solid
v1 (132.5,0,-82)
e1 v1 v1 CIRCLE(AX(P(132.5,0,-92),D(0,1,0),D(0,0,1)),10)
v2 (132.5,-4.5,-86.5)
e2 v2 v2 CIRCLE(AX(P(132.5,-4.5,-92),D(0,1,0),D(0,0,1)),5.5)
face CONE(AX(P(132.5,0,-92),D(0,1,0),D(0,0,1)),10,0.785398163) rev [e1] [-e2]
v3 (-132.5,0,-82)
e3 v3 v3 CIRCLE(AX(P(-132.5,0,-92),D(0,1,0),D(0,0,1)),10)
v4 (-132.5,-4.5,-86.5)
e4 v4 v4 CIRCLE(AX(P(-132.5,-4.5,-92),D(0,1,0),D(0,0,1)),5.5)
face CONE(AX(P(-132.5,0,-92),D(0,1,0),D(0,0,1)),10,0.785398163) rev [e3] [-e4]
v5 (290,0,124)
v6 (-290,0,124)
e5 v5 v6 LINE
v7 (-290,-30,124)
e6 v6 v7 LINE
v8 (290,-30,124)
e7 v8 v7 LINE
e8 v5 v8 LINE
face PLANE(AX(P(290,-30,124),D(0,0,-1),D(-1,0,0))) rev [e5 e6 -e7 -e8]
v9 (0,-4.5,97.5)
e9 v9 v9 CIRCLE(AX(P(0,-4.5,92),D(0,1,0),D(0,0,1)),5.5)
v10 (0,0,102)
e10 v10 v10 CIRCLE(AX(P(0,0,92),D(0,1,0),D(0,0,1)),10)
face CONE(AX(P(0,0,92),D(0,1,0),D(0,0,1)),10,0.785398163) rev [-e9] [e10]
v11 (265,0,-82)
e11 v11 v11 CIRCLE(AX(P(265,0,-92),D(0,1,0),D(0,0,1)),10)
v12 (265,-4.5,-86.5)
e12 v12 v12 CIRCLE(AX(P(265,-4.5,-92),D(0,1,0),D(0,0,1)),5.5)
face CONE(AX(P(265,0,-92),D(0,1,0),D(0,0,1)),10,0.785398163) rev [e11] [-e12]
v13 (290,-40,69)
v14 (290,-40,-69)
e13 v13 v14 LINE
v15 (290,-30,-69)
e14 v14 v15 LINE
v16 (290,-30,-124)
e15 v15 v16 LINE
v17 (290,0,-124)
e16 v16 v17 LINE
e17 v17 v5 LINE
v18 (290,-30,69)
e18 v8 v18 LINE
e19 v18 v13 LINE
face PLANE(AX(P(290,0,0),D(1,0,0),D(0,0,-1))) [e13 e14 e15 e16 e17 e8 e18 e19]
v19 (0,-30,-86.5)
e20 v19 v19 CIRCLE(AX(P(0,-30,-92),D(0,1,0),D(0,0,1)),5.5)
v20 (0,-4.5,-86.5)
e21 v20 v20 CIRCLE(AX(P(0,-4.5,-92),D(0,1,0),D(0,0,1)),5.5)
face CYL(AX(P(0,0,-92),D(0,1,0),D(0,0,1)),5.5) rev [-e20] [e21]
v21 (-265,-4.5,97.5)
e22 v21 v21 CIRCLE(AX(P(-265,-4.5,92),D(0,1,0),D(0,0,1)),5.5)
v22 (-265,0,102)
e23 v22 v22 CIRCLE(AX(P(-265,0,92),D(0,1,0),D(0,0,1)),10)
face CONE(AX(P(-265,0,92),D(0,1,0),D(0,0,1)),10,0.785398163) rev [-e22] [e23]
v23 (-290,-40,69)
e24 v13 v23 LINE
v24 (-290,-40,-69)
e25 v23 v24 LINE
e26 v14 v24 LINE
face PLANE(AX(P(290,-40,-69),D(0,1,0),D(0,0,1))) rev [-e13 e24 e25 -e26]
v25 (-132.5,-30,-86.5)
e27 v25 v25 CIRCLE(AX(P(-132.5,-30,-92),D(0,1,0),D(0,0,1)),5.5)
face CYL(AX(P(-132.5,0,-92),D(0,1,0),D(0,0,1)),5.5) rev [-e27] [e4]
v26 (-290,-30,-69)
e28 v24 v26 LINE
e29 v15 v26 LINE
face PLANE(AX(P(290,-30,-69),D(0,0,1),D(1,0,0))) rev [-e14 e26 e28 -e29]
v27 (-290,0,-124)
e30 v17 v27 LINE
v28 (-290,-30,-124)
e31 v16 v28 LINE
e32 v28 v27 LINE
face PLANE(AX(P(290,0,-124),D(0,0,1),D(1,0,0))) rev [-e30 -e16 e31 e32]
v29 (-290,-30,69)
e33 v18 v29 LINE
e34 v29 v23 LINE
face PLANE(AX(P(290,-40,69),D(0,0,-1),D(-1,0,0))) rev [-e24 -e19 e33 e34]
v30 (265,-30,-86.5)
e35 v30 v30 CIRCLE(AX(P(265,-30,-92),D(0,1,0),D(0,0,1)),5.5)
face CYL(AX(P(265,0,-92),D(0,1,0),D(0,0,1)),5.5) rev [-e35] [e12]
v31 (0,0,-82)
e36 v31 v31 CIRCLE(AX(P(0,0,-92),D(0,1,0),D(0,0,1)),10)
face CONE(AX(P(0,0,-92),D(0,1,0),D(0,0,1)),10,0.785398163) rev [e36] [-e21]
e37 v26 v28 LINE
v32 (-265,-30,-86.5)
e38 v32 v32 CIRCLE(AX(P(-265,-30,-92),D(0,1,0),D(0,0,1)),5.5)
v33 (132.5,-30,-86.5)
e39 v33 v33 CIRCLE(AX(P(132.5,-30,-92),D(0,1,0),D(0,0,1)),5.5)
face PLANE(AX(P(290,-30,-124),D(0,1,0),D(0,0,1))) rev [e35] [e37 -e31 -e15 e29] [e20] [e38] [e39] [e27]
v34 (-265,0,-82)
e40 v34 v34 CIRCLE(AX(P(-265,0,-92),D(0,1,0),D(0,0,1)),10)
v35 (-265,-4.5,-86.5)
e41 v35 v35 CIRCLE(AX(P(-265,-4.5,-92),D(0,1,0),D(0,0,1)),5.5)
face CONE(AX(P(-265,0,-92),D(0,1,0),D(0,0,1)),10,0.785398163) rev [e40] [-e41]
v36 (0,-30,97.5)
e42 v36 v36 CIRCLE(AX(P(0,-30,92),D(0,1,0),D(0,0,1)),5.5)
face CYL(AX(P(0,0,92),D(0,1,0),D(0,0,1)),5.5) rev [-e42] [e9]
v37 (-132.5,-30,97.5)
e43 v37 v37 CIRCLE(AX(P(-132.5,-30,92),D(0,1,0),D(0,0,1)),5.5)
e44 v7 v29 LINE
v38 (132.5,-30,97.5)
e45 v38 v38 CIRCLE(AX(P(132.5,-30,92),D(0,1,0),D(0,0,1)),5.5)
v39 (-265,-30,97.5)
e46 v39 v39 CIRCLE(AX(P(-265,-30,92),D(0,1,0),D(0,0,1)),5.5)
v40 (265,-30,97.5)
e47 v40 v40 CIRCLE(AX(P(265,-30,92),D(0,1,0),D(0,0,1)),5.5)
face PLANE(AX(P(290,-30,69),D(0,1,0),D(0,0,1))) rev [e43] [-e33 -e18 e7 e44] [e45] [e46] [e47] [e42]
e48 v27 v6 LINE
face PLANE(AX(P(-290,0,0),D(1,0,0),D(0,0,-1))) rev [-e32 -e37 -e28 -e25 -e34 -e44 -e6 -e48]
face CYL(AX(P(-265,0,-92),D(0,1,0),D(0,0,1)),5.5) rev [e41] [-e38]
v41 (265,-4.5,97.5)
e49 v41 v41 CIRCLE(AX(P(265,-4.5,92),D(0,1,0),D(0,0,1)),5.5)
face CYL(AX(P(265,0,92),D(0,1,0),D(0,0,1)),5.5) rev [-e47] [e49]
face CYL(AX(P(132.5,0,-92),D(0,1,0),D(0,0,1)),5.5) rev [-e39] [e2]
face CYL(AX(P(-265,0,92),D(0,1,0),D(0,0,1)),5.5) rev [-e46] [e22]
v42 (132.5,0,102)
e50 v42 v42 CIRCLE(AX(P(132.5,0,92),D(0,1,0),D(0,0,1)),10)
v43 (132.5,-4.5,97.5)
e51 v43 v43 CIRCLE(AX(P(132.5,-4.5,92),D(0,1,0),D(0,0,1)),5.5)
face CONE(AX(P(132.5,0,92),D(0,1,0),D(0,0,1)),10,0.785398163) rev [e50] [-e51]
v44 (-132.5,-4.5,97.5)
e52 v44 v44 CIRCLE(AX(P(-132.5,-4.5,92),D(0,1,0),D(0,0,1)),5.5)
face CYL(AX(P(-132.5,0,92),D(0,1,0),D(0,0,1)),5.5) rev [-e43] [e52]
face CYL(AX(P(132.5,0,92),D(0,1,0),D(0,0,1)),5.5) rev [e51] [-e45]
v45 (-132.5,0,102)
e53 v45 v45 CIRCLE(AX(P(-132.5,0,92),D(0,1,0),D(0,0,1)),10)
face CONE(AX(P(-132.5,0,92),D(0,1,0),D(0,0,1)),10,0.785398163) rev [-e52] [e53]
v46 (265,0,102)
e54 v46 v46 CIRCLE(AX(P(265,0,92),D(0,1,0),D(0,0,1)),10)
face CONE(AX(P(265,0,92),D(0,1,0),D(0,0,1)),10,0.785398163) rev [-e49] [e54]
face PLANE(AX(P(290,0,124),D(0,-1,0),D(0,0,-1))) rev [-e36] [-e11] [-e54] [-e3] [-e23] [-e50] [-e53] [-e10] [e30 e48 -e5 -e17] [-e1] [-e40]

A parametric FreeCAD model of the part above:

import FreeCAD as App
import Part
import Sketcher

V = App.Vector
Q = App.Units.Quantity

doc = App.newDocument("Part")
params = doc.addObject("Spreadsheet::Sheet", "Params")
for row, (alias, value) in enumerate([
    ("sketch1_width", "30 mm"),
    ("sketch1_width2", "10 mm"),
    ("sketch1_height", "248 mm"),
    ("sketch1_height2", "55 mm"),
    ("pad1_length", "580 mm"),
    ("sketch2_diameter", "11 mm"),
    ("hole_diameter", "11 mm"),
    ("hole_depth", "55.695267 mm"),
    ("hole_csink_diameter", "20 mm"),
], start=1):
    params.set(f"A{row}", alias)
    params.set(f"B{row}", "=" + value)
    params.setAlias(f"B{row}", alias)

body = doc.addObject("PartDesign::Body", "Body")

# Sketch on YZ plane
sketch1 = body.newObject("Sketcher::SketchObject", "Sketch")
sketch1.AttachmentSupport = (doc.getObject("YZ_Plane"), [""])
sketch1.MapMode = "FlatFace"
sketch1.addGeometry(Part.LineSegment(V(0, -124, 0), V(0, 124, 0)), False)
sketch1.addGeometry(Part.LineSegment(V(0, 124, 0), V(-30, 124, 0)), False)
sketch1.addGeometry(Part.LineSegment(V(-30, 124, 0), V(-30, 69, 0)), False)
sketch1.addGeometry(Part.LineSegment(V(-30, 69, 0), V(-40, 69, 0)), False)
sketch1.addGeometry(Part.LineSegment(V(-40, 69, 0), V(-40, -69, 0)), False)
sketch1.addGeometry(Part.LineSegment(V(-40, -69, 0), V(-30, -69, 0)), False)
sketch1.addGeometry(Part.LineSegment(V(-30, -69, 0), V(-30, -124, 0)), False)
sketch1.addGeometry(Part.LineSegment(V(-30, -124, 0), V(0, -124, 0)), False)
sketch1.addConstraint(Sketcher.Constraint("Coincident", 0, 2, 1, 1))
sketch1.addConstraint(Sketcher.Constraint("Coincident", 1, 2, 2, 1))
sketch1.addConstraint(Sketcher.Constraint("Coincident", 2, 2, 3, 1))
sketch1.addConstraint(Sketcher.Constraint("Coincident", 3, 2, 4, 1))
sketch1.addConstraint(Sketcher.Constraint("Coincident", 4, 2, 5, 1))
sketch1.addConstraint(Sketcher.Constraint("Coincident", 5, 2, 6, 1))
sketch1.addConstraint(Sketcher.Constraint("Coincident", 6, 2, 7, 1))
sketch1.addConstraint(Sketcher.Constraint("Coincident", 7, 2, 0, 1))
sketch1.addConstraint(Sketcher.Constraint("Vertical", 0))
sketch1.addConstraint(Sketcher.Constraint("Horizontal", 1))
sketch1.addConstraint(Sketcher.Constraint("Vertical", 2))
sketch1.addConstraint(Sketcher.Constraint("Horizontal", 3))
sketch1.addConstraint(Sketcher.Constraint("Vertical", 4))
sketch1.addConstraint(Sketcher.Constraint("Horizontal", 5))
sketch1.addConstraint(Sketcher.Constraint("Vertical", 6))
sketch1.addConstraint(Sketcher.Constraint("Horizontal", 7))
sketch1.addConstraint(Sketcher.Constraint("Symmetric", 0, 2, 7, 2, -1, 1))
sketch1.addConstraint(Sketcher.Constraint("Symmetric", 2, 2, 5, 2, -1))
sketch1.addConstraint(Sketcher.Constraint("DistanceX", 1, 2, 1, 1, Q("30 mm")))
sketch1.addConstraint(Sketcher.Constraint("DistanceX", 3, 2, 3, 1, Q("10 mm")))
sketch1.addConstraint(Sketcher.Constraint("DistanceY", 0, 1, 0, 2, Q("248 mm")))
sketch1.addConstraint(Sketcher.Constraint("DistanceY", 2, 2, 2, 1, Q("55 mm")))
sketch1.setExpression("Constraints[18]", "Params.sketch1_width")
sketch1.setExpression("Constraints[19]", "Params.sketch1_width2")
sketch1.setExpression("Constraints[20]", "Params.sketch1_height")
sketch1.setExpression("Constraints[21]", "Params.sketch1_height2")
pad1 = body.newObject("PartDesign::Pad", "Pad")
pad1.Profile = sketch1
pad1.setExpression("Length", "Params.pad1_length")
pad1.Midplane = True

# Sketch on XZ plane
sketch2 = body.newObject("Sketcher::SketchObject", "Sketch001")
sketch2.AttachmentSupport = (doc.getObject("XZ_Plane"), [""])
sketch2.MapMode = "FlatFace"
sketch2.addGeometry(Part.Circle(V(-265, -92, 0), V(0, 0, 1), 5.5), False)
sketch2.addGeometry(Part.Circle(V(-132.5, -92, 0), V(0, 0, 1), 5.5), False)
sketch2.addGeometry(Part.Circle(V(0, -92, 0), V(0, 0, 1), 5.5), False)
sketch2.addGeometry(Part.Circle(V(132.5, -92, 0), V(0, 0, 1), 5.5), False)
sketch2.addGeometry(Part.Circle(V(265, -92, 0), V(0, 0, 1), 5.5), False)
sketch2.addGeometry(Part.Circle(V(265, 92, 0), V(0, 0, 1), 5.5), False)
sketch2.addGeometry(Part.Circle(V(132.5, 92, 0), V(0, 0, 1), 5.5), False)
sketch2.addGeometry(Part.Circle(V(0, 92, 0), V(0, 0, 1), 5.5), False)
sketch2.addGeometry(Part.Circle(V(-132.5, 92, 0), V(0, 0, 1), 5.5), False)
sketch2.addGeometry(Part.Circle(V(-265, 92, 0), V(0, 0, 1), 5.5), False)
sketch2.addConstraint(Sketcher.Constraint("Equal", 0, 1))
sketch2.addConstraint(Sketcher.Constraint("Equal", 1, 2))
sketch2.addConstraint(Sketcher.Constraint("Equal", 2, 3))
sketch2.addConstraint(Sketcher.Constraint("Equal", 3, 4))
sketch2.addConstraint(Sketcher.Constraint("Equal", 4, 5))
sketch2.addConstraint(Sketcher.Constraint("Equal", 5, 6))
sketch2.addConstraint(Sketcher.Constraint("Equal", 6, 7))
sketch2.addConstraint(Sketcher.Constraint("Equal", 7, 8))
sketch2.addConstraint(Sketcher.Constraint("Equal", 8, 9))
sketch2.addConstraint(Sketcher.Constraint("Symmetric", 0, 3, 5, 3, -1, 1))
sketch2.addConstraint(Sketcher.Constraint("Symmetric", 1, 3, 6, 3, -1, 1))
sketch2.addConstraint(Sketcher.Constraint("Symmetric", 2, 3, 7, 3, -1, 1))
sketch2.addConstraint(Sketcher.Constraint("Symmetric", 3, 3, 8, 3, -1, 1))
sketch2.addConstraint(Sketcher.Constraint("Symmetric", 4, 3, 9, 3, -1, 1))
sketch2.addConstraint(Sketcher.Constraint("Symmetric", 1, 3, 3, 3, -2))
sketch2.addConstraint(Sketcher.Constraint("Symmetric", 0, 3, 4, 3, -2))
sketch2.addConstraint(Sketcher.Constraint("PointOnObject", 2, 3, -2))
sketch2.addConstraint(Sketcher.Constraint("Horizontal", 0, 3, 1, 3))
sketch2.addConstraint(Sketcher.Constraint("Horizontal", 1, 3, 2, 3))
sketch2.addConstraint(Sketcher.Constraint("Diameter", 0, Q("11 mm")))
sketch2.addConstraint(Sketcher.Constraint("DistanceX", 0, 3, -1, 1, Q("265 mm")))
sketch2.addConstraint(Sketcher.Constraint("DistanceY", 0, 3, -1, 1, Q("92 mm")))
sketch2.addConstraint(Sketcher.Constraint("DistanceX", 1, 3, 3, 3, Q("265 mm")))
sketch2.setExpression("Constraints[19]", "Params.sketch2_diameter")
doc.recompute()
hole = body.newObject("PartDesign::Hole", "Hole")
hole.Profile = sketch2
hole.ThreadType = "None"
hole.setExpression("Diameter", "Params.hole_diameter")
hole.DepthType = "Dimension"
hole.setExpression("Depth", "Params.hole_depth")
hole.DrillPoint = "Angled"
hole.DrillPointAngle = 118
hole.HoleCutType = "Countersink"
hole.setExpression("HoleCutDiameter", "Params.hole_csink_diameter")
hole.HoleCutCountersinkAngle = 90
hole.Reversed = True

doc.recompute()
